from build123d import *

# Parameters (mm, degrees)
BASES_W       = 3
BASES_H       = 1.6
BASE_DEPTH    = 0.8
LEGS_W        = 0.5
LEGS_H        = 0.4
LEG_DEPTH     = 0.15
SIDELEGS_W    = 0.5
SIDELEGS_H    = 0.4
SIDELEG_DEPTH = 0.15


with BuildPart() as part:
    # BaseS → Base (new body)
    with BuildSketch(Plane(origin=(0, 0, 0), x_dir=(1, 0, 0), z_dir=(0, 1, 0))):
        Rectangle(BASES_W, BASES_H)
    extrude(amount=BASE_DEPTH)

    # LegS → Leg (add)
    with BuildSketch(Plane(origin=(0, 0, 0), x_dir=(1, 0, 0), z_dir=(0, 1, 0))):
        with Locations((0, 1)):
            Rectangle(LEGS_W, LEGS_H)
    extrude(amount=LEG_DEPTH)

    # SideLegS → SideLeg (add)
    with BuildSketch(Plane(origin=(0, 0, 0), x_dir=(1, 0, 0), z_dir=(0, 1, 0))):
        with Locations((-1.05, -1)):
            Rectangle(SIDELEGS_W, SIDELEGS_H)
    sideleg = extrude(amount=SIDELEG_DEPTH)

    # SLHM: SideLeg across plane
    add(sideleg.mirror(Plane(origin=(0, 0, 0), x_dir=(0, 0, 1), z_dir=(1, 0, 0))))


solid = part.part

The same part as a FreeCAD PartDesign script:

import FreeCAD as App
import Part
import Sketcher
from FreeCAD import Vector
Q = App.Units.Quantity


def add_polygon(sketch, points):
    """Adds a closed chain of lines whose ends are joined by coincident constraints."""
    first, n = sketch.GeometryCount, len(points)
    for a, b in zip(points, points[1:] + points[:1]):
        sketch.addGeometry(Part.LineSegment(App.Vector(*a, 0), App.Vector(*b, 0)), False)
    for i in range(n):
        sketch.addConstraint(Sketcher.Constraint("Coincident", first + i, 2, first + (i + 1) % n, 1))

doc = App.newDocument("Part")
params = doc.addObject("Spreadsheet::Sheet", "Params")
for row, (alias, value) in enumerate([
    ("sketch1_width", "3 mm"),
    ("sketch1_height", "1.6 mm"),
    ("pad1_length", "0.8 mm"),
    ("sketch2_width", "0.5 mm"),
    ("sketch2_height", "0.4 mm"),
    ("pad2_length", "0.15 mm"),
    ("sketch3_width", "0.5 mm"),
    ("sketch3_height", "0.4 mm"),
    ("pad3_length", "0.15 mm"),
], start=1):
    params.set(f"A{row}", alias)
    params.set(f"B{row}", "=" + value)
    params.setAlias(f"B{row}", alias)

body = doc.addObject("PartDesign::Body", "Body")

sketch1 = body.newObject("Sketcher::SketchObject", "Sketch")
sketch1.AttachmentSupport = (doc.getObject("XZ_Plane"), [""])
sketch1.MapMode = "FlatFace"
add_polygon(sketch1, [(-1.5, -0.8), (-1.5, 0.8), (1.5, 0.8), (1.5, -0.8)])
sketch1.addConstraint([
    Sketcher.Constraint("Vertical", 0),
    Sketcher.Constraint("Horizontal", 1),
    Sketcher.Constraint("Vertical", 2),
    Sketcher.Constraint("Horizontal", 3),
    Sketcher.Constraint("Symmetric", 0, 2, 2, 2, -1, 1),
    Sketcher.Constraint("DistanceX", 1, 1, 1, 2, Q("3 mm")),
    Sketcher.Constraint("DistanceY", 0, 1, 0, 2, Q("1.6 mm")),
])
sketch1.setExpression("Constraints[9]", "Params.sketch1_width")
sketch1.setExpression("Constraints[10]", "Params.sketch1_height")
pad1 = body.newObject("PartDesign::Pad", "Pad")
pad1.Profile = sketch1
pad1.setExpression("Length", "Params.pad1_length")
pad1.Reversed = True

sketch2 = body.newObject("Sketcher::SketchObject", "Sketch001")
sketch2.AttachmentSupport = (doc.getObject("XZ_Plane"), [""])
sketch2.MapMode = "FlatFace"
add_polygon(sketch2, [(-0.25, -1.2), (-0.25, -0.8), (0.25, -0.8), (0.25, -1.2)])
sketch2.addConstraint([
    Sketcher.Constraint("Vertical", 0),
    Sketcher.Constraint("Horizontal", 1),
    Sketcher.Constraint("Vertical", 2),
    Sketcher.Constraint("Horizontal", 3),
    Sketcher.Constraint("DistanceX", 1, 1, 1, 2, Q("0.5 mm")),
    Sketcher.Constraint("DistanceY", 0, 1, 0, 2, Q("0.4 mm")),
    Sketcher.Constraint("DistanceY", 0, 2, -1, 1, Q("0.8 mm")),
    Sketcher.Constraint("DistanceX", 0, 2, -1, 1, Q("0.25 mm")),
])
sketch2.setExpression("Constraints[8]", "Params.sketch2_width")
sketch2.setExpression("Constraints[9]", "Params.sketch2_height")
pad2 = body.newObject("PartDesign::Pad", "Pad001")
pad2.Profile = sketch2
pad2.setExpression("Length", "Params.pad2_length")
pad2.Reversed = True

sketch3 = body.newObject("Sketcher::SketchObject", "Sketch002")
sketch3.AttachmentSupport = (doc.getObject("XZ_Plane"), [""])
sketch3.MapMode = "FlatFace"
add_polygon(sketch3, [(-1.3, 0.8), (-1.3, 1.2), (-0.8, 1.2), (-0.8, 0.8)])
sketch3.addConstraint([
    Sketcher.Constraint("Vertical", 0),
    Sketcher.Constraint("Horizontal", 1),
    Sketcher.Constraint("Vertical", 2),
    Sketcher.Constraint("Horizontal", 3),
    Sketcher.Constraint("DistanceX", 1, 1, 1, 2, Q("0.5 mm")),
    Sketcher.Constraint("DistanceY", 0, 1, 0, 2, Q("0.4 mm")),
    Sketcher.Constraint("DistanceX", 0, 2, -1, 1, Q("1.3 mm")),
    Sketcher.Constraint("DistanceY", -1, 1, 0, 2, Q("1.2 mm")),
])
sketch3.setExpression("Constraints[8]", "Params.sketch3_width")
sketch3.setExpression("Constraints[9]", "Params.sketch3_height")
pad3 = body.newObject("PartDesign::Pad", "Pad002")
pad3.Profile = sketch3
pad3.setExpression("Length", "Params.pad3_length")
pad3.Reversed = True
doc.recompute()

mirrored = body.newObject("PartDesign::Mirrored", "Mirrored")
mirrored.Originals = [pad3]
mirrored.MirrorPlane = (doc.getObject("YZ_Plane"), [""])
body.Tip = mirrored

doc.recompute()
